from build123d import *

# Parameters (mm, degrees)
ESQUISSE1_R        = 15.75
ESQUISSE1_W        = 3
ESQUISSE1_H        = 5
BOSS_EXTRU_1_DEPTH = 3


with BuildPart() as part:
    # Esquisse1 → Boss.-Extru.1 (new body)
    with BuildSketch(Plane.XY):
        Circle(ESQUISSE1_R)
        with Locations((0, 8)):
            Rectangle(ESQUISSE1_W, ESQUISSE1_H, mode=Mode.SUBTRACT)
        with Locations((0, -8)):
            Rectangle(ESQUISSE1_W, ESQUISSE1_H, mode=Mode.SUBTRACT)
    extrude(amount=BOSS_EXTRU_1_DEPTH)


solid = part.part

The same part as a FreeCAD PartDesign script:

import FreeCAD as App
import Part
import Sketcher
from FreeCAD import Vector
Q = App.Units.Quantity


def add_polygon(sketch, points):
    """Adds a closed chain of lines whose ends are joined by coincident constraints."""
    first, n = sketch.GeometryCount, len(points)
    for a, b in zip(points, points[1:] + points[:1]):
        sketch.addGeometry(Part.LineSegment(App.Vector(*a, 0), App.Vector(*b, 0)), False)
    for i in range(n):
        sketch.addConstraint(Sketcher.Constraint("Coincident", first + i, 2, first + (i + 1) % n, 1))

doc = App.newDocument("Part")
body = doc.addObject("PartDesign::Body", "Body")

sketch1 = doc.addObject("Sketcher::SketchObject", "Sketch")
body.addObject(sketch1)
sketch1.AttachmentSupport = (doc.XY_Plane, [""])
sketch1.MapMode = "FlatFace"
sketch1.addGeometry(Part.Circle(Vector(0, 0, 0), Vector(0, 0, 1), 15.8), False)
add_polygon(sketch1, [(1.5, -10.5), (-1.5, -10.5), (-1.5, -5.5), (1.5, -5.5)])
add_polygon(sketch1, [(1.5, 5.5), (-1.5, 5.5), (-1.5, 10.5), (1.5, 10.5)])
sketch1.addConstraint(Sketcher.Constraint("Horizontal", 1))
sketch1.addConstraint(Sketcher.Constraint("Vertical", 2))
sketch1.addConstraint(Sketcher.Constraint("Horizontal", 3))
sketch1.addConstraint(Sketcher.Constraint("Vertical", 4))
sketch1.addConstraint(Sketcher.Constraint("Horizontal", 5))
sketch1.addConstraint(Sketcher.Constraint("Vertical", 6))
sketch1.addConstraint(Sketcher.Constraint("Horizontal", 7))
sketch1.addConstraint(Sketcher.Constraint("Vertical", 8))
sketch1.addConstraint(Sketcher.Constraint("Coincident", 0, 3, -1, 1))
sketch1.addConstraint(Sketcher.Constraint("Symmetric", 3, 2, 5, 2, -1, 1))
sketch1.addConstraint(Sketcher.Constraint("Symmetric", 1, 2, 7, 2, -1, 1))
sketch1.addConstraint(Sketcher.Constraint("Vertical", 2, 2, 5, 2))
sketch1.addConstraint(Sketcher.Constraint("Diameter", 0, Q("31.5 mm")))
sketch1.addConstraint(Sketcher.Constraint("DistanceX", 1, 2, 1, 1, Q("3 mm")))
sketch1.addConstraint(Sketcher.Constraint("DistanceY", 2, 1, 2, 2, Q("5 mm")))
sketch1.addConstraint(Sketcher.Constraint("DistanceY", 2, 2, 5, 2, Q("11 mm")))
pad1 = doc.addObject("PartDesign::Pad", "Pad")
body.addObject(pad1)
pad1.Profile = sketch1
pad1.Length = 3

doc.recompute()
